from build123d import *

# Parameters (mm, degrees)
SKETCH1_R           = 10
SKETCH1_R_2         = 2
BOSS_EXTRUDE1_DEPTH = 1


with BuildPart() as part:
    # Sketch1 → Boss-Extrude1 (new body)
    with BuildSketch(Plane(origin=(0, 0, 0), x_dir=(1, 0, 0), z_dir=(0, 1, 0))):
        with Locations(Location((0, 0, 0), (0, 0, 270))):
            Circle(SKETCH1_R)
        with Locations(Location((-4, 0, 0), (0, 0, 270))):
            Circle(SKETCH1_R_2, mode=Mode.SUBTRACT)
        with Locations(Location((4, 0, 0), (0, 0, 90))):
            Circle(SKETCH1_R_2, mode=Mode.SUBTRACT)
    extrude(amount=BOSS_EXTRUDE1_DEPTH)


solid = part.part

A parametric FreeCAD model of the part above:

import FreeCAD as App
import Part
import Sketcher

V = App.Vector

doc = App.newDocument("Part")
params = doc.addObject("Spreadsheet::Sheet", "Params")
for row, (alias, value) in enumerate([
    ("sketch1_diameter", "20 mm"),
    ("sketch1_diameter2", "4 mm"),
    ("pad1_length", "1 mm"),
], start=1):
    params.set(f"A{row}", alias)
    params.set(f"B{row}", "=" + value)
    params.setAlias(f"B{row}", alias)

body = doc.addObject("PartDesign::Body", "Body")

sketch1 = doc.addObject("Sketcher::SketchObject", "Sketch")
body.addObject(sketch1)
sketch1.AttachmentSupport = (doc.XZ_Plane, [""])
sketch1.MapMode = "FlatFace"
sketch1.addGeometry([
    Part.Circle(V(0, 0, 0), V(0, 0, 1), 10),
    Part.Circle(V(-4, 0, 0), V(0, 0, 1), 2),
    Part.Circle(V(4, 0, 0), V(0, 0, 1), 2),
], False)
sketch1.addConstraint([
    Sketcher.Constraint("Coincident", 0, 3, -1, 1),
    Sketcher.Constraint("Equal", 1, 2),
    Sketcher.Constraint("Symmetric", 1, 3, 2, 3, -1, 1),
    Sketcher.Constraint("PointOnObject", 1, 3, -1),
    Sketcher.Constraint("Diameter", 0, 20.0),
    Sketcher.Constraint("Diameter", 1, 4.0),
    Sketcher.Constraint("DistanceX", 1, 3, -1, 1, 4.0),
])
sketch1.setExpression("Constraints[4]", "Params.sketch1_diameter")
sketch1.setExpression("Constraints[5]", "Params.sketch1_diameter2")
pad1 = doc.addObject("PartDesign::Pad", "Pad")
body.addObject(pad1)
pad1.Profile = sketch1
pad1.setExpression("Length", "Params.pad1_length")
pad1.Reversed = True

doc.recompute()
